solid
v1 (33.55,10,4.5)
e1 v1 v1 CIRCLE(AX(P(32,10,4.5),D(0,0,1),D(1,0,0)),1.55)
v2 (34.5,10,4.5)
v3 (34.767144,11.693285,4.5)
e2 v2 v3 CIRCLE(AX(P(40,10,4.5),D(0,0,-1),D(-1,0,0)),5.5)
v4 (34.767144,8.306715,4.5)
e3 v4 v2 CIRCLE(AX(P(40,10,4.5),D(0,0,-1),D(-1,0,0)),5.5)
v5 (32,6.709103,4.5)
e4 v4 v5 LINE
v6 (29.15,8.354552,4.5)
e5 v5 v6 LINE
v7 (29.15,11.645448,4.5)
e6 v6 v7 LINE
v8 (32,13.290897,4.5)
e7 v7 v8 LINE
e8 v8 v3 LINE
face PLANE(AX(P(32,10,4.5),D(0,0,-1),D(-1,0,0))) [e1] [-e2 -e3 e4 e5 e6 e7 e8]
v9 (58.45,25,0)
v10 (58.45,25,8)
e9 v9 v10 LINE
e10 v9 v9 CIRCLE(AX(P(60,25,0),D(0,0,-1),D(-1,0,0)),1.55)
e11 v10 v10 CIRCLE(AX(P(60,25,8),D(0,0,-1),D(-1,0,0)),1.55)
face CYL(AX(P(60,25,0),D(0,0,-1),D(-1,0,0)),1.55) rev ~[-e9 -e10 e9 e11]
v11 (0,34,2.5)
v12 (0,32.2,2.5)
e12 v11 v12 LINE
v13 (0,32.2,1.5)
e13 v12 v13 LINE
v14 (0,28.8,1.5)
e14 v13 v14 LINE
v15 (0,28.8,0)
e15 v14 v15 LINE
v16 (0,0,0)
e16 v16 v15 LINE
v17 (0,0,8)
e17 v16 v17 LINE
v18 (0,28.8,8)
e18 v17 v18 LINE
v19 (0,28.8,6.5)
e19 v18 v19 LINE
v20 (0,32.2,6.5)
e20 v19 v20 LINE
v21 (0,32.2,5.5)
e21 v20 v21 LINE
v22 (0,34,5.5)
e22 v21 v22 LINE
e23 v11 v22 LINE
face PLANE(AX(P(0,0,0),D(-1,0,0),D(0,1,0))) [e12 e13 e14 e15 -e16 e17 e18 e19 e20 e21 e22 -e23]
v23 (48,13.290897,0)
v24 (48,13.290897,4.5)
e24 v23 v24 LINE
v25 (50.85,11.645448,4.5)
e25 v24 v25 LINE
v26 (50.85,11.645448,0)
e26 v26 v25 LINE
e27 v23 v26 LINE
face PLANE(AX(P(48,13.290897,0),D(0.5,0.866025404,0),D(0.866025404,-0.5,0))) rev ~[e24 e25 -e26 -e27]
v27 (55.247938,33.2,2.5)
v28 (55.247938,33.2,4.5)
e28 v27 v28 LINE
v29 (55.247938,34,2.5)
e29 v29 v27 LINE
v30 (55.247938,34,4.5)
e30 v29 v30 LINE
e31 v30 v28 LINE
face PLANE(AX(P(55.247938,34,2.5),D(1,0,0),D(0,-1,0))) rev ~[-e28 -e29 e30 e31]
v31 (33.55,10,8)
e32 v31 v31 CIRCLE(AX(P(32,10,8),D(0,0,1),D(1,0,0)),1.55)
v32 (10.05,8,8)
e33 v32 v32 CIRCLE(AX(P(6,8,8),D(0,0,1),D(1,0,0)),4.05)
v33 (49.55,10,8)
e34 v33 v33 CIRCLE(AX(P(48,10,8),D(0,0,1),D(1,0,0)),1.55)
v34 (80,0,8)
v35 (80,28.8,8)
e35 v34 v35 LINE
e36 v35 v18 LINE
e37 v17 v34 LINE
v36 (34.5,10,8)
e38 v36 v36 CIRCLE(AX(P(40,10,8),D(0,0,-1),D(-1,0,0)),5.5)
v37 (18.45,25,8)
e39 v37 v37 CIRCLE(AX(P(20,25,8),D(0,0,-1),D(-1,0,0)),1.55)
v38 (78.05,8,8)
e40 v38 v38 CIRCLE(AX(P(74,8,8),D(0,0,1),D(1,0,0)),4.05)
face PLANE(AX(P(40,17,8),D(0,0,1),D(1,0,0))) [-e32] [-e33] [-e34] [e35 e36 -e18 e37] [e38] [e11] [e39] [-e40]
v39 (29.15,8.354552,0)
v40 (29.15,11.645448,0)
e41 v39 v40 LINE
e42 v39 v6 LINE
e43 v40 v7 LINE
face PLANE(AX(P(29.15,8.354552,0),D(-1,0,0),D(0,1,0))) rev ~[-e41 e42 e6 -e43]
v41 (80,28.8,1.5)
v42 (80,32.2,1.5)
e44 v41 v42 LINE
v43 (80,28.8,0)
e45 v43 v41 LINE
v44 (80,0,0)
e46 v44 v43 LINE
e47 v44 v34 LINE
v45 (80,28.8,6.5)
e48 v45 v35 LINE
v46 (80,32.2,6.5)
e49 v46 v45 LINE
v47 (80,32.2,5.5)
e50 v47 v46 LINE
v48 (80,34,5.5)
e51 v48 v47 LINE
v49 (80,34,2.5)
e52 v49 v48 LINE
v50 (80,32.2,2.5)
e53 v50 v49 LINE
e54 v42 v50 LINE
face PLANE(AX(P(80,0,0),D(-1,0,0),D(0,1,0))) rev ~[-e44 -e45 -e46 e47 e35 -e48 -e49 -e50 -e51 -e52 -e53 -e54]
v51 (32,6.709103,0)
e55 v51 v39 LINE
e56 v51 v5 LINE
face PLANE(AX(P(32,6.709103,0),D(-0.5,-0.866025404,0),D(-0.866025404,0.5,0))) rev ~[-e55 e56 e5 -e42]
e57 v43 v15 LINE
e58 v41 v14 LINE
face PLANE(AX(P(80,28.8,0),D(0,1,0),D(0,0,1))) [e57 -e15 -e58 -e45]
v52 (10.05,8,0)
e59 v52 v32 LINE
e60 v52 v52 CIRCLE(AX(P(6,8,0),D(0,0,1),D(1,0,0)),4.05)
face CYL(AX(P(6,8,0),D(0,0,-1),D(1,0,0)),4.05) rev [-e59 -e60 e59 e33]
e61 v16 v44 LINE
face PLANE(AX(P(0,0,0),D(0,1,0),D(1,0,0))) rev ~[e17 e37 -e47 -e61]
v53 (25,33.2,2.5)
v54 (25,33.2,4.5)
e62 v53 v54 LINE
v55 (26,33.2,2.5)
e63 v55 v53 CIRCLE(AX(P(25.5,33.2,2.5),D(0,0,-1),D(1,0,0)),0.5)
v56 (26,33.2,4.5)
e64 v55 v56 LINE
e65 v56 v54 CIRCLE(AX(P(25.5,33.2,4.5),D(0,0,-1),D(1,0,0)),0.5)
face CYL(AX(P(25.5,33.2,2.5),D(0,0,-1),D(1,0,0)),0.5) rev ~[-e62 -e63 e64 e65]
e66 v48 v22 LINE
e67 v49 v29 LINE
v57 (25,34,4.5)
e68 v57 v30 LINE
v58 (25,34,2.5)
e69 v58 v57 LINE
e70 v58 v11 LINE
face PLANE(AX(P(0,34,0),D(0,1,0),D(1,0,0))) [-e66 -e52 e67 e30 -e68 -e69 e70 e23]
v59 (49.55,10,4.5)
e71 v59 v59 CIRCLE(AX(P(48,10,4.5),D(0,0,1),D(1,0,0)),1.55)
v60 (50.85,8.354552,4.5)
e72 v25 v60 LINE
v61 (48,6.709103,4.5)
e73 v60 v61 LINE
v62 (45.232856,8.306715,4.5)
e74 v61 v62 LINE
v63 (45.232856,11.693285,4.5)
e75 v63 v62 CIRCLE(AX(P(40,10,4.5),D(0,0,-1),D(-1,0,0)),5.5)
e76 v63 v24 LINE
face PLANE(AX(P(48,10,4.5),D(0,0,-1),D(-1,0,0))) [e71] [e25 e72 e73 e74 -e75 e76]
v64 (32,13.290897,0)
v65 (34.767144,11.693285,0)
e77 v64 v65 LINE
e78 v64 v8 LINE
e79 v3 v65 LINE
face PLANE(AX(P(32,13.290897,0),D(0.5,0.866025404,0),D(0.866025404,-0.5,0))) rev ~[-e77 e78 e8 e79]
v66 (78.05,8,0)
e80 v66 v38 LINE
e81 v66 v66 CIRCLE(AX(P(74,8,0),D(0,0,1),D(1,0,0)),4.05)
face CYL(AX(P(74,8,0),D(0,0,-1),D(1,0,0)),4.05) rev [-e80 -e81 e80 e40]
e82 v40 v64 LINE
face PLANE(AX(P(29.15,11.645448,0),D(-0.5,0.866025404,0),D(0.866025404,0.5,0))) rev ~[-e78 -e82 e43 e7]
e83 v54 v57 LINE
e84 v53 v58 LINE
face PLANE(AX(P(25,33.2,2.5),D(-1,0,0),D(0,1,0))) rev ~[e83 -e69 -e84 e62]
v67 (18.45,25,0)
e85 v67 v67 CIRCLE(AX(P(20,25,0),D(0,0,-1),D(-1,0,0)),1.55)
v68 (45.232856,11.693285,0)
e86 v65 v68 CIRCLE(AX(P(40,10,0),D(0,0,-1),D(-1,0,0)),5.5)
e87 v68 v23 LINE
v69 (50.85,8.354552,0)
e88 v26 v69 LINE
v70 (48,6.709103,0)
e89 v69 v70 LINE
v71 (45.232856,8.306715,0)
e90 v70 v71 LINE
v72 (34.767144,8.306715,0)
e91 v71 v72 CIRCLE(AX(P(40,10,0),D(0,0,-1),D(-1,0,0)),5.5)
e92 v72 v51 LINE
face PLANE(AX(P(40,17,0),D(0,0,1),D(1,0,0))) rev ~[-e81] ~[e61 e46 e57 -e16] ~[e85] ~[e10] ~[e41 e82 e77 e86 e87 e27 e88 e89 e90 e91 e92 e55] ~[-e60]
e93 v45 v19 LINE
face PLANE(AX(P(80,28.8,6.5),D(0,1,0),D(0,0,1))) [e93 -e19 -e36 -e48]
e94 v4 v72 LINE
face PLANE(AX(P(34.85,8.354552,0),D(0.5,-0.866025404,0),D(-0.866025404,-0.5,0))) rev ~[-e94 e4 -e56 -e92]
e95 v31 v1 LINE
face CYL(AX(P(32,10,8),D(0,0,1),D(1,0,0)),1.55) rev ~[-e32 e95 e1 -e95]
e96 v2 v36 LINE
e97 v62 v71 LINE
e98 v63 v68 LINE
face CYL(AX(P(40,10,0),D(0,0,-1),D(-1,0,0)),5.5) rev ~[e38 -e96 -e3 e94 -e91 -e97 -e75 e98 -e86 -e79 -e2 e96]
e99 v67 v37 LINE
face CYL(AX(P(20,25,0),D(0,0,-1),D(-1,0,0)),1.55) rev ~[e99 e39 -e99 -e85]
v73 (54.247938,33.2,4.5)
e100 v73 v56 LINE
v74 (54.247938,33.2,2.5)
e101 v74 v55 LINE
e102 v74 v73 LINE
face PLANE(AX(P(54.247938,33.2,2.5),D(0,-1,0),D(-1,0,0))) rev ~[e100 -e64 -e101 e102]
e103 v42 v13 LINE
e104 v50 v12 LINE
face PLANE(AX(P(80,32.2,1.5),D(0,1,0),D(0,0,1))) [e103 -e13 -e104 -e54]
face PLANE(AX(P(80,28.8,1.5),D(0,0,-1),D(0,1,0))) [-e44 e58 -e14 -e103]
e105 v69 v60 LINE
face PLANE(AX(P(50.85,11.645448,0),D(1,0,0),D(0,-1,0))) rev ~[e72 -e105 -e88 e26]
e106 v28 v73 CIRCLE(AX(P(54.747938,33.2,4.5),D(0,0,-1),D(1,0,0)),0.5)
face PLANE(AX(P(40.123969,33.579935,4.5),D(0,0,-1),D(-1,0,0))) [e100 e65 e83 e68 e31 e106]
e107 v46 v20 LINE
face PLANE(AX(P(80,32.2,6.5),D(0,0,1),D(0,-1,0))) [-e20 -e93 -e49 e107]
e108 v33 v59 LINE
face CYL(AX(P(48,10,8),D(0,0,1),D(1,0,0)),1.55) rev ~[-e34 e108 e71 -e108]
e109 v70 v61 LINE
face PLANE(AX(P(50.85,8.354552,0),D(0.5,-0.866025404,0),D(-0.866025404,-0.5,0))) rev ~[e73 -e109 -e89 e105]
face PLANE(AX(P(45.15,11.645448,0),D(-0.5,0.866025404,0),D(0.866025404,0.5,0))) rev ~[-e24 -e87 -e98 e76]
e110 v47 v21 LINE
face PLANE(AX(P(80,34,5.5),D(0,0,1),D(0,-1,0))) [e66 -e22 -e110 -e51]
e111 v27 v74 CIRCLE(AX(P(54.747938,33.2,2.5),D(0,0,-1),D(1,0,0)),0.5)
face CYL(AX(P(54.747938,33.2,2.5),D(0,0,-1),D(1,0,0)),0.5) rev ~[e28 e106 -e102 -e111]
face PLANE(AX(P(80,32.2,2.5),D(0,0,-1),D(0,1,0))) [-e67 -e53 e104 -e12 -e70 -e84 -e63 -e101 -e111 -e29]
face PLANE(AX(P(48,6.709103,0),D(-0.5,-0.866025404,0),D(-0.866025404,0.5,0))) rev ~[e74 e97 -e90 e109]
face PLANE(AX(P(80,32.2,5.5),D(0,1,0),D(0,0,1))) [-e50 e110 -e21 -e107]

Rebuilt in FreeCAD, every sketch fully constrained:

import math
import FreeCAD as App
import Part
import Sketcher
from FreeCAD import Vector
Q = App.Units.Quantity


def add_polygon(sketch, points):
    """Adds a closed chain of lines whose ends are joined by coincident constraints."""
    first, n = sketch.GeometryCount, len(points)
    for a, b in zip(points, points[1:] + points[:1]):
        sketch.addGeometry(Part.LineSegment(App.Vector(*a, 0), App.Vector(*b, 0)), False)
    for i in range(n):
        sketch.addConstraint(Sketcher.Constraint("Coincident", first + i, 2, first + (i + 1) % n, 1))

doc = App.newDocument("Part")
body = doc.addObject("PartDesign::Body", "Body")

# Sketch on XY plane
sketch1 = body.newObject("Sketcher::SketchObject", "Sketch")
sketch1.AttachmentSupport = (doc.getObject("XY_Plane"), [""])
sketch1.MapMode = "FlatFace"
add_polygon(sketch1, [(0, 34), (0, 0), (80, 0), (80, 34)])  # lines 0-3
sketch1.addGeometry(Part.Circle(Vector(6, 8, 0), Vector(0, 0, 1), 4.05), False)  # 4
sketch1.addGeometry(Part.Circle(Vector(74, 8, 0), Vector(0, 0, 1), 4.05), False)  # 5
sketch1.addGeometry(Part.Circle(Vector(40, 10, 0), Vector(0, 0, 1), 4.05), False)  # 6
sketch1.addConstraint([
    Sketcher.Constraint("Vertical", 0),
    Sketcher.Constraint("Horizontal", 1),
    Sketcher.Constraint("Vertical", 2),
    Sketcher.Constraint("Horizontal", 3),
    Sketcher.Constraint("Coincident", 0, 2, -1, 1),
    Sketcher.Constraint("Equal", 4, 5),
    Sketcher.Constraint("Equal", 5, 6),
    Sketcher.Constraint("Horizontal", 4, 3, 5, 3),
    Sketcher.Constraint("Diameter", 4, 8.1),
    Sketcher.Constraint("DistanceX", 1, 1, 1, 2, 80.0),
    Sketcher.Constraint("DistanceY", 0, 2, 0, 1, 34.0),
    Sketcher.Constraint("DistanceX", -1, 1, 4, 3, 6.0),
    Sketcher.Constraint("DistanceY", -1, 1, 4, 3, 8.0),
    Sketcher.Constraint("DistanceX", -1, 1, 5, 3, 74.0),
    Sketcher.Constraint("DistanceX", -1, 1, 6, 3, 40.0),
    Sketcher.Constraint("DistanceY", -1, 1, 6, 3, 10.0),
])
pad1 = body.newObject("PartDesign::Pad", "Pad")
pad1.Profile = sketch1
pad1.Length = 8

# Sketch on YZ plane
sketch2 = body.newObject("Sketcher::SketchObject", "Sketch001")
sketch2.AttachmentSupport = (doc.getObject("YZ_Plane"), [""])
sketch2.MapMode = "FlatFace"
sketch2.AttachmentOffset = App.Placement(Vector(0, 0, 80), App.Rotation())
add_polygon(sketch2, [(32.2, 2.5), (32.2, 1.5), (28.8, 1.5), (28.8, 0), (34, 0), (34, 2.5)])  # lines 0-5
add_polygon(sketch2, [(28.8, 6.5), (32.2, 6.5), (32.2, 5.5), (34, 5.5), (34, 8), (28.8, 8)])  # lines 6-11
sketch2.addConstraint([
    Sketcher.Constraint("Vertical", 0),
    Sketcher.Constraint("Horizontal", 1),
    Sketcher.Constraint("Vertical", 2),
    Sketcher.Constraint("Horizontal", 3),
    Sketcher.Constraint("Vertical", 4),
    Sketcher.Constraint("Horizontal", 5),
    Sketcher.Constraint("Horizontal", 6),
    Sketcher.Constraint("Vertical", 7),
    Sketcher.Constraint("Horizontal", 8),
    Sketcher.Constraint("Vertical", 9),
    Sketcher.Constraint("Horizontal", 10),
    Sketcher.Constraint("Vertical", 11),
    Sketcher.Constraint("PointOnObject", 2, 2, -1),
    Sketcher.Constraint("Vertical", 5, 2, 6, 2),
    Sketcher.Constraint("Vertical", 4, 2, 8, 2),
    Sketcher.Constraint("Vertical", 2, 2, 10, 2),
    Sketcher.Constraint("Equal", 0, 7),
    Sketcher.Constraint("Equal", 4, 9),
    Sketcher.Constraint("DistanceY", 0, 2, 0, 1, 1.0),
    Sketcher.Constraint("DistanceX", 1, 2, 1, 1, 3.4),
    Sketcher.Constraint("DistanceX", 3, 1, 3, 2, 5.2),
    Sketcher.Constraint("DistanceY", 2, 2, 2, 1, 1.5),
    Sketcher.Constraint("DistanceX", -1, 1, 3, 2, 34.0),
    Sketcher.Constraint("DistanceY", -1, 1, 9, 2, 8.0),
])
pocket1 = body.newObject("PartDesign::Pocket", "Pocket")
pocket1.Profile = sketch2
pocket1.Type = "ThroughAll"

# Sketch on XY plane
sketch3 = body.newObject("Sketcher::SketchObject", "Sketch002")
sketch3.AttachmentSupport = (doc.getObject("XY_Plane"), [""])
sketch3.MapMode = "FlatFace"
sketch3.AttachmentOffset = App.Placement(Vector(0, 0, 8), App.Rotation())
sketch3.addGeometry([
    Part.Circle(Vector(48, 10, 0), Vector(0, 0, 1), 1.55),
    Part.Circle(Vector(32, 10, 0), Vector(0, 0, 1), 1.55),
], False)
sketch3.addConstraint([
    Sketcher.Constraint("Equal", 0, 1),
    Sketcher.Constraint("Horizontal", 0, 3, 1, 3),
    Sketcher.Constraint("Diameter", 0, 3.1),
    Sketcher.Constraint("DistanceX", -1, 1, 0, 3, 48.0),
    Sketcher.Constraint("DistanceY", -1, 1, 0, 3, 10.0),
    Sketcher.Constraint("DistanceX", -1, 1, 1, 3, 32.0),
])
pocket2 = body.newObject("PartDesign::Pocket", "Pocket001")
pocket2.Profile = sketch3
pocket2.Type = "ThroughAll"

# Sketch on XY plane
sketch4 = body.newObject("Sketcher::SketchObject", "Sketch003")
sketch4.AttachmentSupport = (doc.getObject("XY_Plane"), [""])
sketch4.MapMode = "FlatFace"
add_polygon(sketch4, [(45.15, 8.354552), (45.15, 11.645448), (48, 13.290897), (50.85, 11.645448), (50.85, 8.354552), (48, 6.709103)])  # lines 0-5
add_polygon(sketch4, [(29.15, 8.354552), (29.15, 11.645448), (32, 13.290897), (34.85, 11.645448), (34.85, 8.354552), (32, 6.709103)])  # lines 6-11
sketch4.addConstraint([
    Sketcher.Constraint("Vertical", 0),
    Sketcher.Constraint("Vertical", 3),
    Sketcher.Constraint("Vertical", 6),
    Sketcher.Constraint("Vertical", 9),
    Sketcher.Constraint("Parallel", 1, 4),
    Sketcher.Constraint("Parallel", 2, 5),
    Sketcher.Constraint("Parallel", 4, 7),
    Sketcher.Constraint("Parallel", 5, 8),
    Sketcher.Constraint("Parallel", 7, 10),
    Sketcher.Constraint("Parallel", 8, 11),
    Sketcher.Constraint("Horizontal", 0, 2, 2, 2),
    Sketcher.Constraint("Horizontal", 3, 2, 5, 2),
    Sketcher.Constraint("Horizontal", 2, 2, 6, 2),
    Sketcher.Constraint("Horizontal", 1, 2, 7, 2),
    Sketcher.Constraint("Horizontal", 6, 2, 8, 2),
    Sketcher.Constraint("Horizontal", 5, 2, 9, 2),
    Sketcher.Constraint("Horizontal", 4, 2, 10, 2),
    Sketcher.Constraint("Vertical", 1, 2, 4, 2),
    Sketcher.Constraint("Angle", 1, Q("30 deg")),
    Sketcher.Constraint("DistanceX", -1, 1, 1, 2, 48.0),
    Sketcher.Constraint("DistanceX", -1, 1, 7, 2, 32.0),
    Sketcher.Constraint("DistanceX", 0, 2, 2, 2, 5.7),
    Sketcher.Constraint("DistanceY", 0, 1, 0, 2, 3.290897),
    Sketcher.Constraint("DistanceY", -1, 1, 0, 2, 11.645448),
])
pocket3 = body.newObject("PartDesign::Pocket", "Pocket002")
pocket3.Profile = sketch4
pocket3.Length = 4.5
pocket3.Reversed = True

# Sketch on XY plane
sketch5 = body.newObject("Sketcher::SketchObject", "Sketch004")
sketch5.AttachmentSupport = (doc.getObject("XY_Plane"), [""])
sketch5.MapMode = "FlatFace"
sketch5.addGeometry([
    Part.Circle(Vector(60, 25, 0), Vector(0, 0, 1), 1.55),
    Part.Circle(Vector(20, 25, 0), Vector(0, 0, 1), 1.55),
], False)
sketch5.addConstraint([
    Sketcher.Constraint("Equal", 0, 1),
    Sketcher.Constraint("Horizontal", 0, 3, 1, 3),
    Sketcher.Constraint("Diameter", 0, 3.1),
    Sketcher.Constraint("DistanceX", -1, 1, 0, 3, 60.0),
    Sketcher.Constraint("DistanceY", -1, 1, 0, 3, 25.0),
    Sketcher.Constraint("DistanceX", -1, 1, 1, 3, 20.0),
])
pocket4 = body.newObject("PartDesign::Pocket", "Pocket003")
pocket4.Profile = sketch5
pocket4.Type = "ThroughAll"
pocket4.Reversed = True

# Sketch on XY plane
sketch6 = body.newObject("Sketcher::SketchObject", "Sketch005")
sketch6.AttachmentSupport = (doc.getObject("XY_Plane"), [""])
sketch6.MapMode = "FlatFace"
sketch6.AttachmentOffset = App.Placement(Vector(0, 0, 2.5), App.Rotation())
sketch6.addGeometry([
    Part.LineSegment(Vector(25, 34, 0), Vector(55.247938, 34, 0)),  # 0
    Part.LineSegment(Vector(55.247938, 34, 0), Vector(55.247938, 33.2, 0)),  # 1
    Part.ArcOfCircle(Part.Circle(Vector(54.747938, 33.2, 0), Vector(0, 0, 1), 0.5), math.radians(180), math.radians(360)),  # 2
    Part.LineSegment(Vector(54.247938, 33.2, 0), Vector(26, 33.2, 0)),  # 3
    Part.ArcOfCircle(Part.Circle(Vector(25.5, 33.2, 0), Vector(0, 0, 1), 0.5), math.radians(180), math.radians(360)),  # 4
    Part.LineSegment(Vector(25, 33.2, 0), Vector(25, 34, 0)),  # 5
], False)
sketch6.addConstraint([
    Sketcher.Constraint("Coincident", 0, 2, 1, 1),
    Sketcher.Constraint("Tangent", 1, 2, 2, 2),
    Sketcher.Constraint("Coincident", 2, 1, 3, 1),
    Sketcher.Constraint("Coincident", 3, 2, 4, 2),
    Sketcher.Constraint("Tangent", 4, 1, 5, 1),
    Sketcher.Constraint("Coincident", 5, 2, 0, 1),
    Sketcher.Constraint("Horizontal", 0),
    Sketcher.Constraint("Vertical", 1),
    Sketcher.Constraint("Horizontal", 3),
    Sketcher.Constraint("Vertical", 5),
    Sketcher.Constraint("Equal", 2, 4),
    Sketcher.Constraint("Horizontal", 2, 3, 4, 3),
    Sketcher.Constraint("Horizontal", 1, 2, 2, 1),
    Sketcher.Constraint("Radius", 2, 0.5),
    Sketcher.Constraint("DistanceY", 1, 2, 1, 1, 0.8),
    Sketcher.Constraint("DistanceY", -1, 1, 0, 2, 34.0),
    Sketcher.Constraint("DistanceX", -1, 1, 3, 2, 26.0),
    Sketcher.Constraint("DistanceX", 0, 1, 0, 2, 30.247938),
])
pocket5 = body.newObject("PartDesign::Pocket", "Pocket004")
pocket5.Profile = sketch6
pocket5.Length = 2
pocket5.Reversed = True

# Sketch on XY plane
sketch7 = body.newObject("Sketcher::SketchObject", "Sketch006")
sketch7.AttachmentSupport = (doc.getObject("XY_Plane"), [""])
sketch7.MapMode = "FlatFace"
sketch7.addGeometry(Part.Circle(Vector(40, 10, 0), Vector(0, 0, 1), 5.5), False)
sketch7.addConstraint([
    Sketcher.Constraint("Diameter", 0, 11.0),
    Sketcher.Constraint("DistanceX", -1, 1, 0, 3, 40.0),
    Sketcher.Constraint("DistanceY", -1, 1, 0, 3, 10.0),
])
pocket6 = body.newObject("PartDesign::Pocket", "Pocket005")
pocket6.Profile = sketch7
pocket6.Type = "ThroughAll"
pocket6.Reversed = True

doc.recompute()
